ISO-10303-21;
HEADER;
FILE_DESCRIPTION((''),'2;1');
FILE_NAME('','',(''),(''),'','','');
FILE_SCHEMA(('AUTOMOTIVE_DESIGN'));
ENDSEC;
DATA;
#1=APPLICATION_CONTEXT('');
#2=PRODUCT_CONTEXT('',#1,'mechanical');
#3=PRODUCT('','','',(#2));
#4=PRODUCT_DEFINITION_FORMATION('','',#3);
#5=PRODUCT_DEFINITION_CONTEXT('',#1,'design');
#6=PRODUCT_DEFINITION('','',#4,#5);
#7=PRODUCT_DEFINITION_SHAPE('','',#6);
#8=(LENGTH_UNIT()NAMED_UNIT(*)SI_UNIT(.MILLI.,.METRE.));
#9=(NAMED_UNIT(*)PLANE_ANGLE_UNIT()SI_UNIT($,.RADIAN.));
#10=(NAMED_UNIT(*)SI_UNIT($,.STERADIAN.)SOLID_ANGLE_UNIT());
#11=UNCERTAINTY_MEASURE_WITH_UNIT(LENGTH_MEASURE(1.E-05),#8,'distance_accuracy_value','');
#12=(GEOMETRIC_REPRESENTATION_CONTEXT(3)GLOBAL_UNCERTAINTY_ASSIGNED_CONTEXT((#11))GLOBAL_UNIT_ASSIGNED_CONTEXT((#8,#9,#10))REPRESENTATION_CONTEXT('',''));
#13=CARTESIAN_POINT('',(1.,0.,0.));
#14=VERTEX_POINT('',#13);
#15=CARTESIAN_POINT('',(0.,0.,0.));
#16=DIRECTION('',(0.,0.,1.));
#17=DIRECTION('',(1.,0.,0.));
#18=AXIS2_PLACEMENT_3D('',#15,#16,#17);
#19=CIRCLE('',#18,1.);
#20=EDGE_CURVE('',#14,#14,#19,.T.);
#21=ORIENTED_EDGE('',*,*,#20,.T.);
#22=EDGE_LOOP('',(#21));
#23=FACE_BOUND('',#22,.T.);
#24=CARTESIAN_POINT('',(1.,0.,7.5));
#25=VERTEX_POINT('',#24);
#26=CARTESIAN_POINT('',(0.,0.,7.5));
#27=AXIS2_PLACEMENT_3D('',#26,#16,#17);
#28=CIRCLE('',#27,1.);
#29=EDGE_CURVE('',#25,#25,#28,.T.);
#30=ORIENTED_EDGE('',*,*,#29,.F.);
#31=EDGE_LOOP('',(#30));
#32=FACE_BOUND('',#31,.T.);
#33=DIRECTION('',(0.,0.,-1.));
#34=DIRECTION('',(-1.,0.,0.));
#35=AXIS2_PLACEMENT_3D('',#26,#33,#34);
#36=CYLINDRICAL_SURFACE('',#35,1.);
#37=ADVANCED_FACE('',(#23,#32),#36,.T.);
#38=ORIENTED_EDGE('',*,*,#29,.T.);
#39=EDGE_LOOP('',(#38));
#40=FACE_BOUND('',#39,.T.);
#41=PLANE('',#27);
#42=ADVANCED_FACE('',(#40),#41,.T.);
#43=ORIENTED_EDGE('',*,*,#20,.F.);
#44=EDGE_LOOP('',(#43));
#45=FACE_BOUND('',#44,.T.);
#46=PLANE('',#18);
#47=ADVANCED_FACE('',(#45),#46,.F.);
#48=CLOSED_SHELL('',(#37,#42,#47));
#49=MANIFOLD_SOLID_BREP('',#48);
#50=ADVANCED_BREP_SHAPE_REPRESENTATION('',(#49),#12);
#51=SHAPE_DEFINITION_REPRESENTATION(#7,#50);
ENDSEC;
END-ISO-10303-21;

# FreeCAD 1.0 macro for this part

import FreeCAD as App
import Part
import Sketcher

V = App.Vector

doc = App.newDocument("Part")
body = doc.addObject("PartDesign::Body", "Body")

sketch1 = body.newObject("Sketcher::SketchObject", "Sketch")
sketch1.AttachmentSupport = (doc.getObject("XY_Plane"), [""])
sketch1.MapMode = "FlatFace"
sketch1.addGeometry(Part.Circle(V(0, 0, 0), V(0, 0, 1), 1), False)
sketch1.addConstraint(Sketcher.Constraint("Coincident", 0, 3, -1, 1))
sketch1.addConstraint(Sketcher.Constraint("Diameter", 0, 2.0))
pad1 = body.newObject("PartDesign::Pad", "Pad")
pad1.Profile = sketch1
pad1.Length = 7.5

doc.recompute()
